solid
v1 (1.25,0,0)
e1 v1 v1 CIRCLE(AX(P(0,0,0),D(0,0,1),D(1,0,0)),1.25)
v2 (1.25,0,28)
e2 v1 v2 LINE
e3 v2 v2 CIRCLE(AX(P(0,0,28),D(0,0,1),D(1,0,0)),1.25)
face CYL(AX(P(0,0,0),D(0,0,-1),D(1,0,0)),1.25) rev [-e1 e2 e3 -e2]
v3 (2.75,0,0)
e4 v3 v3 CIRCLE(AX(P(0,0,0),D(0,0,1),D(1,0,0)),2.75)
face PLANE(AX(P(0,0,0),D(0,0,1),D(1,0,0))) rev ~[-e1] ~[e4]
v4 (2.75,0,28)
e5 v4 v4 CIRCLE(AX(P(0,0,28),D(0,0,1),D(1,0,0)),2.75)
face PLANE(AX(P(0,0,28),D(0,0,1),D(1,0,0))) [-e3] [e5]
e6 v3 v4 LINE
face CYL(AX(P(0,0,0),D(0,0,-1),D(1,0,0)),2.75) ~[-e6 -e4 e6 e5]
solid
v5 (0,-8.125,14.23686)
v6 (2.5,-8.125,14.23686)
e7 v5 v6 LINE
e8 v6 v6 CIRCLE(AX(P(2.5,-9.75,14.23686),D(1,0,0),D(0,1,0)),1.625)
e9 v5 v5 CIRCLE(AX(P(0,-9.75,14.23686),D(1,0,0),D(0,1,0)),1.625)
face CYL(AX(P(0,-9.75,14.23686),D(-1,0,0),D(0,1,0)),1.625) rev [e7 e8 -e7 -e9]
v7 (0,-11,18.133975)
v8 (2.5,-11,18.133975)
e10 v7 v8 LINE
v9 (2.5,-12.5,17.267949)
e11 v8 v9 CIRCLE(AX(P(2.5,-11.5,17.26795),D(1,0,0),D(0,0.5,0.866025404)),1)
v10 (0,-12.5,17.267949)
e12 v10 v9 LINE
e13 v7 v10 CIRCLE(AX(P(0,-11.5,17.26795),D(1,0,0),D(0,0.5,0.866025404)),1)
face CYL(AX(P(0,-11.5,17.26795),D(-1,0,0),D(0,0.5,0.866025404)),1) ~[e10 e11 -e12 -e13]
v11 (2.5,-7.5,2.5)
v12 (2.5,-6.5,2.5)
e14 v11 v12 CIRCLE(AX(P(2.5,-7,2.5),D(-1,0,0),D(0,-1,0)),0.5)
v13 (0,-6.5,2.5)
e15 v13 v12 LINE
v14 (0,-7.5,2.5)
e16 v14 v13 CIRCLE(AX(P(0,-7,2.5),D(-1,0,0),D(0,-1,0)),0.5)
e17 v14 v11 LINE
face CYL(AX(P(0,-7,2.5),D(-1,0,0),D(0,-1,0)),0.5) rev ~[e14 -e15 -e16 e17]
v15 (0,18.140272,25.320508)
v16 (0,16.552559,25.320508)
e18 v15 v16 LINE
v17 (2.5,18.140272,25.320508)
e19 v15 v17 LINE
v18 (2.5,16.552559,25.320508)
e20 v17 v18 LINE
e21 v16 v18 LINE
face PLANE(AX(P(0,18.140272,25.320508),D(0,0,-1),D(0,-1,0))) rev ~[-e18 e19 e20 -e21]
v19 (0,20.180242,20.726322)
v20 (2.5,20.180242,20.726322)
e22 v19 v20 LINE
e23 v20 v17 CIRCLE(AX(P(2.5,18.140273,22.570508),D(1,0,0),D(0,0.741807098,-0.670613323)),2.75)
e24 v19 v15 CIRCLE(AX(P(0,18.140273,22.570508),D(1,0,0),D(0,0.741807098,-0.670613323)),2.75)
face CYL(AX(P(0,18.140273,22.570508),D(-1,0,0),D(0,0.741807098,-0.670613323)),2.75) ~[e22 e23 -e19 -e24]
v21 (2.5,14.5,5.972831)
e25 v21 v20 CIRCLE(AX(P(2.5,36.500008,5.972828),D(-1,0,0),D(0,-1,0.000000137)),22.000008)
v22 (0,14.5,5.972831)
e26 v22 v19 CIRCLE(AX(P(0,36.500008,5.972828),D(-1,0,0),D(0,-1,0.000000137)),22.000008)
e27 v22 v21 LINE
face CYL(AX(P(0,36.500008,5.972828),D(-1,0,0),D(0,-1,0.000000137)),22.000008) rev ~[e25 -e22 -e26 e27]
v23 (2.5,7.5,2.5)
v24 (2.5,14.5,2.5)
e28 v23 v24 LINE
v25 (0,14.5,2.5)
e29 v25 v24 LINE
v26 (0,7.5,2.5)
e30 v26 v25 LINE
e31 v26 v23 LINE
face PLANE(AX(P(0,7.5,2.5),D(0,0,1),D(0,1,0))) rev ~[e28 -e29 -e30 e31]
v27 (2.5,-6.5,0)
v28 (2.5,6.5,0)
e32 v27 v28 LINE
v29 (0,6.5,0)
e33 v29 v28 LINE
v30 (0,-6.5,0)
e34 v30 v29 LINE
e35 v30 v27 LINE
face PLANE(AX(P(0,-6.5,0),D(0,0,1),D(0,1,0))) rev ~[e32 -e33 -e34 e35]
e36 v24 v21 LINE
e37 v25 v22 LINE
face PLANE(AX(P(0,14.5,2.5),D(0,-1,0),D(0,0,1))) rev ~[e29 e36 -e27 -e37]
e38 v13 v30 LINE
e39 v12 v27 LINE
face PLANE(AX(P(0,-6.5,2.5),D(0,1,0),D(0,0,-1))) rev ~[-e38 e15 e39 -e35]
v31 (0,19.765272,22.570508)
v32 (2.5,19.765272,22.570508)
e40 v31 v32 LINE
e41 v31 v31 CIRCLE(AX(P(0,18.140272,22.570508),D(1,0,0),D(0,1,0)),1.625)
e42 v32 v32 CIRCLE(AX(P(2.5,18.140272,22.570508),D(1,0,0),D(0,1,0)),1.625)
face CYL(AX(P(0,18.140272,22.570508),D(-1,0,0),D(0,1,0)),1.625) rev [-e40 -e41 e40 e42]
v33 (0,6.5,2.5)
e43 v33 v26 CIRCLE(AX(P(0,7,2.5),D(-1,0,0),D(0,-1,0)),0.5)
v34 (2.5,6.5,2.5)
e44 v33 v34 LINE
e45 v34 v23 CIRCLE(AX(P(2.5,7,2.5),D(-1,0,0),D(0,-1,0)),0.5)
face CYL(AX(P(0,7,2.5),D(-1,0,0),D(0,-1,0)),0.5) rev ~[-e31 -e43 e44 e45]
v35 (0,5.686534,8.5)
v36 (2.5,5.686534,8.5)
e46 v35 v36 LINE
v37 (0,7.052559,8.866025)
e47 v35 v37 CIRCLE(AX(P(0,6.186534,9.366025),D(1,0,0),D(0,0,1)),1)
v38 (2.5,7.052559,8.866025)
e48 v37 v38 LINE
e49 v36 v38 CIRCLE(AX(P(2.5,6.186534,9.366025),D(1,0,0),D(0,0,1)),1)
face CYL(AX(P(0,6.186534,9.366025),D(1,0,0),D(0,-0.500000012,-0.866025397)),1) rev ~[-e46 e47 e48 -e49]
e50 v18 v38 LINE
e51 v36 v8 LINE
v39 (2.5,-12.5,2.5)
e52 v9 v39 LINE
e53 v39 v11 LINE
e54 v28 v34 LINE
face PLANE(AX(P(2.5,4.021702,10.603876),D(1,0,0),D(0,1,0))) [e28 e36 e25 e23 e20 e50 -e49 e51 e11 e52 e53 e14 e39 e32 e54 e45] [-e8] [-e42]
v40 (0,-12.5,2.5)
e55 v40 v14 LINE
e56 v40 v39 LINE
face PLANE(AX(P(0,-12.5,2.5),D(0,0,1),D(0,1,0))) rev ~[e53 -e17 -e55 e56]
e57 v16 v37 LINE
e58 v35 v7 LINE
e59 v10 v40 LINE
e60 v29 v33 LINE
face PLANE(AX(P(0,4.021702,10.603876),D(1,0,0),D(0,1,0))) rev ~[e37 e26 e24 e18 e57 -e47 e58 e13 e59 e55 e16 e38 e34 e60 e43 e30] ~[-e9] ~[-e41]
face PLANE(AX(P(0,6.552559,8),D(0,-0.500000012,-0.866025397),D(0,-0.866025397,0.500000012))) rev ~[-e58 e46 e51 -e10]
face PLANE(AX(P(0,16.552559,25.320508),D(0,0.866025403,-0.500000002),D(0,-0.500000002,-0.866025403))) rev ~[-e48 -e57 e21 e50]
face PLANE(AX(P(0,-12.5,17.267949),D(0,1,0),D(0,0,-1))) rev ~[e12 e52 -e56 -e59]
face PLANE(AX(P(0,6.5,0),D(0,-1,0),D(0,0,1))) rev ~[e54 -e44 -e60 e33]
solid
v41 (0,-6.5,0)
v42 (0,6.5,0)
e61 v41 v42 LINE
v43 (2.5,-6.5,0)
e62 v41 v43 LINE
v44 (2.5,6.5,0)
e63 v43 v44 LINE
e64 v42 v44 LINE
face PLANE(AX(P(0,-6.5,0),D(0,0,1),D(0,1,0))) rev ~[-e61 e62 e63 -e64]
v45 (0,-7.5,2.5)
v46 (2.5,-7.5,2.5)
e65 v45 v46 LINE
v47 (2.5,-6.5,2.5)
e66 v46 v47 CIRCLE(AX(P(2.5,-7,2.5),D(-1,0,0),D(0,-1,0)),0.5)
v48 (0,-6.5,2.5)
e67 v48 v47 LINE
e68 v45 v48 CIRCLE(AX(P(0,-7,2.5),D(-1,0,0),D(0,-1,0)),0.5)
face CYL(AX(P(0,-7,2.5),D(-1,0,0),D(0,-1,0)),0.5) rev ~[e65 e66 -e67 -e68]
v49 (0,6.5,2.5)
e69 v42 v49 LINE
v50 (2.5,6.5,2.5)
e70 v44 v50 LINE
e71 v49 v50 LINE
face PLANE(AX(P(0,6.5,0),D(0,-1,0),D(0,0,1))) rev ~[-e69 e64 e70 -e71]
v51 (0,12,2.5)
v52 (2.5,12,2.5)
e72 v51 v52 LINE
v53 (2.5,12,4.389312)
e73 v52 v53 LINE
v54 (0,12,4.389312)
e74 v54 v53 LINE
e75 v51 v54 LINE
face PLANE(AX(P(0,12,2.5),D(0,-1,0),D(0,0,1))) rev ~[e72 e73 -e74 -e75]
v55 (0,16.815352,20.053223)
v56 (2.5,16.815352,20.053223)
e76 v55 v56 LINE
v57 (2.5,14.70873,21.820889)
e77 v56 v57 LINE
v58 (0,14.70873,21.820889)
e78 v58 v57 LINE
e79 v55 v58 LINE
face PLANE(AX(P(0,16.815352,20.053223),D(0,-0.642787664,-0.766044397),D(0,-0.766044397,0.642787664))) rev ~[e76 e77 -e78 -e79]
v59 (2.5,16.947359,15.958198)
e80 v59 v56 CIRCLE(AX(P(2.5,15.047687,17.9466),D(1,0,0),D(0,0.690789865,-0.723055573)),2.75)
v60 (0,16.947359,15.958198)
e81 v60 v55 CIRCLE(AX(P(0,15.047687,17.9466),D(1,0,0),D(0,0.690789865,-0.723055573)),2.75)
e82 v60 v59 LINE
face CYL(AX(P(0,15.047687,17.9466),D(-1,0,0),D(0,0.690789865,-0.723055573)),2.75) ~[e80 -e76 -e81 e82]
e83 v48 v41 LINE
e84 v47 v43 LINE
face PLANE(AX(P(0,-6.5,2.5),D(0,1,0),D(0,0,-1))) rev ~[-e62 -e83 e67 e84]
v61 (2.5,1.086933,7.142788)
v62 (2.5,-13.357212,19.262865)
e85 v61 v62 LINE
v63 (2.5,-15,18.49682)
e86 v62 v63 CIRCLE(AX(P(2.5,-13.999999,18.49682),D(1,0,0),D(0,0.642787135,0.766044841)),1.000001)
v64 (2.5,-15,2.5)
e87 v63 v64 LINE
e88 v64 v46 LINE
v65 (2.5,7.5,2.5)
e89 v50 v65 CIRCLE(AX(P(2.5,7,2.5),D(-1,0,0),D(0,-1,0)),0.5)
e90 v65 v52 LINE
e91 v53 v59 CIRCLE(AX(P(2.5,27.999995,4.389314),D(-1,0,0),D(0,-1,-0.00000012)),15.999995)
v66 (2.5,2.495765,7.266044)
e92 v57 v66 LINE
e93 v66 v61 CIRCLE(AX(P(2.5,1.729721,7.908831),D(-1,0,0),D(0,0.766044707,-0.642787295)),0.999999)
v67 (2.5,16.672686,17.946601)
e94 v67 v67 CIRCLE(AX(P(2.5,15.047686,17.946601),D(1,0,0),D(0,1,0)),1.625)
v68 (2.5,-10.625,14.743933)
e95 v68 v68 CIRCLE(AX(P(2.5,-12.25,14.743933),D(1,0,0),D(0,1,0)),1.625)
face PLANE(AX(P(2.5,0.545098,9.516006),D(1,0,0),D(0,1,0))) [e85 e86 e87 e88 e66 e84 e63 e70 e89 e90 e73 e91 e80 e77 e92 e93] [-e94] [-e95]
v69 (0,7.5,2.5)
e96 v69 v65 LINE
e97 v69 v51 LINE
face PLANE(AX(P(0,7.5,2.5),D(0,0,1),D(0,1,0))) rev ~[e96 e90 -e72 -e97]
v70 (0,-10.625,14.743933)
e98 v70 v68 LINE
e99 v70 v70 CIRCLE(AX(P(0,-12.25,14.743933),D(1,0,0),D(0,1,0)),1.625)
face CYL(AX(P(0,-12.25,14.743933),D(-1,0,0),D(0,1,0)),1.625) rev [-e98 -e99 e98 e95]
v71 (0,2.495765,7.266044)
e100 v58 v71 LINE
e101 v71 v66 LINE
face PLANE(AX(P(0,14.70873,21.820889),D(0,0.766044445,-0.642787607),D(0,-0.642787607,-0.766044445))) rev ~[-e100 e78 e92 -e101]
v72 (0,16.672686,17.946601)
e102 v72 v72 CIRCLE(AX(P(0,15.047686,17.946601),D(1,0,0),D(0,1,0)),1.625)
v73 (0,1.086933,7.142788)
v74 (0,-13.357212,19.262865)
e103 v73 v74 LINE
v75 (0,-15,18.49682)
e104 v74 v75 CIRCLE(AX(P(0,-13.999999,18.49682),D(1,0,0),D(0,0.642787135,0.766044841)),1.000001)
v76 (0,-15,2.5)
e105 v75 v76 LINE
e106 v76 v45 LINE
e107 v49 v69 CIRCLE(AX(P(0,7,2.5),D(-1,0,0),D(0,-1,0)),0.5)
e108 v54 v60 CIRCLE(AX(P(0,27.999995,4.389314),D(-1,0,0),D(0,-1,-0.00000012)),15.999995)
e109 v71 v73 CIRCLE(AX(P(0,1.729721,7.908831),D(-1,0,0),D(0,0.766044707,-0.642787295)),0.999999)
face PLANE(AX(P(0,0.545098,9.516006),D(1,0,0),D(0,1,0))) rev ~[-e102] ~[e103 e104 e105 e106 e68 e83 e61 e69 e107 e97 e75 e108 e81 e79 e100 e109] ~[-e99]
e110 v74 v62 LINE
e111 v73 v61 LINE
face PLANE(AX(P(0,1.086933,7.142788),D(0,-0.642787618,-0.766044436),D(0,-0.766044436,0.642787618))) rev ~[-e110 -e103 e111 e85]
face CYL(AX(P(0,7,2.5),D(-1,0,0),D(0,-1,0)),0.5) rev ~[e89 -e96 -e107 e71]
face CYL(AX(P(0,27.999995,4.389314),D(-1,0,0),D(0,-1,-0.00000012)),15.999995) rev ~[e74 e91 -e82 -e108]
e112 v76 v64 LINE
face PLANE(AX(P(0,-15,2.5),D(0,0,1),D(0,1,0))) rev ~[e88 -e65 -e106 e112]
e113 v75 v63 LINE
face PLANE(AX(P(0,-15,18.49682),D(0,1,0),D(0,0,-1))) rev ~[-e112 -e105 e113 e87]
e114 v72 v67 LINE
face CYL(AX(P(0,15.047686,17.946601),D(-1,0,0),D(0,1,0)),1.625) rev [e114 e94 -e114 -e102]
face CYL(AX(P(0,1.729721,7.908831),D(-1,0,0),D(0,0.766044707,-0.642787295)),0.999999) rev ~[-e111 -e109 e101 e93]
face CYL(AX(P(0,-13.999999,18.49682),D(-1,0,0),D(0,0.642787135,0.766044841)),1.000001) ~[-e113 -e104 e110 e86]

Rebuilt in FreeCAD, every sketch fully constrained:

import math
import FreeCAD as App
import Part
import Sketcher

V = App.Vector
Q = App.Units.Quantity


def edges_at(feature, points):
    """Names of the edges that pass closest to the given points."""
    edges = feature.Shape.Edges
    near = lambda p: min(range(len(edges)), key=lambda i: edges[i].distToShape(Part.Vertex(*p))[0])
    return sorted({f"Edge{near(p) + 1}" for p in points})

doc = App.newDocument("Part")
params = doc.addObject("Spreadsheet::Sheet", "Params")
for row, (alias, value) in enumerate([
    ("sketch1_radius", "1 mm"),
    ("sketch1_radius2", "0.5 mm"),
    ("sketch1_diameter", "3.25 mm"),
    ("sketch1_width", "5 mm"),
    ("sketch1_width2", "13 mm"),
    ("pad1_length", "2.5 mm"),
    ("fillet_radius", "1 mm"),
    ("sketch2_radius", "0.999999 mm"),
    ("sketch2_radius2", "0.5 mm"),
    ("sketch2_diameter", "3.25 mm"),
    ("sketch2_width", "13 mm"),
    ("sketch2_radius3", "2.75 mm"),
    ("pad2_length", "2.5 mm"),
    ("sketch3_diameter", "5.5 mm"),
    ("sketch3_diameter2", "2.5 mm"),
    ("pad3_length", "28 mm"),
], start=1):
    params.set(f"A{row}", alias)
    params.set(f"B{row}", "=" + value)
    params.setAlias(f"B{row}", alias)

body = doc.addObject("PartDesign::Body", "Body")

# Sketch on YZ plane
sketch1 = body.newObject("Sketcher::SketchObject", "Sketch")
sketch1.AttachmentSupport = (doc.getObject("YZ_Plane"), [""])
sketch1.MapMode = "FlatFace"
sketch1.addGeometry([
    Part.LineSegment(V(-12.5, 17.267949, 0), V(-12.5, 2.5, 0)),  # 0
    Part.LineSegment(V(-12.5, 2.5, 0), V(-7.5, 2.5, 0)),  # 1
    Part.ArcOfCircle(Part.Circle(V(-7, 2.5, 0), V(0, 0, 1), 0.5), math.radians(0), math.radians(180)),  # 2
    Part.LineSegment(V(-6.5, 2.5, 0), V(-6.5, 0, 0)),  # 3
    Part.LineSegment(V(-6.5, 0, 0), V(6.5, 0, 0)),  # 4
    Part.LineSegment(V(6.5, 0, 0), V(6.5, 2.5, 0)),  # 5
    Part.ArcOfCircle(Part.Circle(V(7, 2.5, 0), V(0, 0, 1), 0.5), math.radians(0), math.radians(180)),  # 6
    Part.LineSegment(V(7.5, 2.5, 0), V(14.5, 2.5, 0)),  # 7
    Part.LineSegment(V(14.5, 2.5, 0), V(14.5, 5.972831, 0)),  # 8
    Part.ArcOfCircle(Part.Circle(V(36.500008, 5.972828, 0), V(0, 0, 1), 22.000008), math.radians(137.885596), math.radians(179.999992)),  # 9
    Part.ArcOfCircle(Part.Circle(V(18.140273, 22.570508, 0), V(0, 0, 1), 2.75), math.radians(-42.114419), math.radians(90.000016)),  # 10
    Part.LineSegment(V(18.140272, 25.320508, 0), V(16.552559, 25.320508, 0)),  # 11
    Part.LineSegment(V(16.552559, 25.320508, 0), V(6.552559, 8, 0)),  # 12
    Part.LineSegment(V(6.552559, 8, 0), V(-11, 18.133975, 0)),  # 13
    Part.ArcOfCircle(Part.Circle(V(-11.5, 17.26795, 0), V(0, 0, 1), 1), math.radians(60), math.radians(180.000034)),  # 14
    Part.Circle(V(-9.75, 14.23686, 0), V(0, 0, 1), 1.625),  # 15
    Part.Circle(V(18.140272, 22.570508, 0), V(0, 0, 1), 1.625),  # 16
], False)
sketch1.addConstraint([
    Sketcher.Constraint("Coincident", 0, 2, 1, 1),
    Sketcher.Constraint("Coincident", 1, 2, 2, 2),
    Sketcher.Constraint("Tangent", 2, 1, 3, 1),
    Sketcher.Constraint("Coincident", 3, 2, 4, 1),
    Sketcher.Constraint("Coincident", 4, 2, 5, 1),
    Sketcher.Constraint("Tangent", 5, 2, 6, 2),
    Sketcher.Constraint("Coincident", 6, 1, 7, 1),
    Sketcher.Constraint("Coincident", 7, 2, 8, 1),
    Sketcher.Constraint("Tangent", 8, 2, 9, 2),
    Sketcher.Constraint("Tangent", 9, 1, 10, 1),
    Sketcher.Constraint("Tangent", 10, 2, 11, 1),
    Sketcher.Constraint("Coincident", 11, 2, 12, 1),
    Sketcher.Constraint("Coincident", 12, 2, 13, 1),
    Sketcher.Constraint("Tangent", 13, 2, 14, 1),
    Sketcher.Constraint("Tangent", 14, 2, 0, 1),
    Sketcher.Constraint("Vertical", 0),
    Sketcher.Constraint("Horizontal", 1),
    Sketcher.Constraint("Vertical", 3),
    Sketcher.Constraint("Horizontal", 4),
    Sketcher.Constraint("Vertical", 5),
    Sketcher.Constraint("Horizontal", 7),
    Sketcher.Constraint("Vertical", 8),
    Sketcher.Constraint("Horizontal", 11),
    Sketcher.Constraint("Coincident", 16, 3, 10, 3),
    Sketcher.Constraint("Equal", 2, 6),
    Sketcher.Constraint("Equal", 15, 16),
    Sketcher.Constraint("Symmetric", 3, 2, 4, 2, -1, 1),
    Sketcher.Constraint("Perpendicular", 12, 13),
    Sketcher.Constraint("Horizontal", 2, 3, 6, 3),
    Sketcher.Constraint("Horizontal", 6, 3, 0, 2),
    Sketcher.Constraint("Horizontal", 5, 2, 6, 1),
    Sketcher.Constraint("Radius", 14, 1.0),
    Sketcher.Constraint("Radius", 2, 0.5),
    Sketcher.Constraint("Diameter", 15, 3.25),
    Sketcher.Constraint("DistanceX", 1, 1, 1, 2, 5.0),
    Sketcher.Constraint("DistanceX", 4, 1, 4, 2, 13.0),
    Sketcher.Constraint("DistanceX", 7, 1, 7, 2, 7.0),
    Sketcher.Constraint("Angle", 12, Q("-120 deg")),
    Sketcher.Constraint("Radius", 10, 2.75),
    Sketcher.Constraint("Distance", 12, 20.0),
    Sketcher.Constraint("DistanceY", 3, 2, 3, 1, 2.5),
    Sketcher.Constraint("DistanceY", -1, 1, 12, 2, 8.0),
    Sketcher.Constraint("DistanceX", 15, 3, -1, 1, 9.75),
    Sketcher.Constraint("Radius", 9, 22.000008),
    Sketcher.Constraint("DistanceY", 0, 2, 0, 1, 14.767949),
    Sketcher.Constraint("DistanceY", 8, 1, 8, 2, 3.472831),
    Sketcher.Constraint("DistanceY", -1, 1, 15, 3, 14.23686),
])
sketch1.setExpression("Constraints[31]", "Params.sketch1_radius")
sketch1.setExpression("Constraints[32]", "Params.sketch1_radius2")
sketch1.setExpression("Constraints[33]", "Params.sketch1_diameter")
sketch1.setExpression("Constraints[34]", "Params.sketch1_width")
sketch1.setExpression("Constraints[35]", "Params.sketch1_width2")
pad1 = body.newObject("PartDesign::Pad", "Pad")
pad1.Profile = sketch1
pad1.setExpression("Length", "Params.pad1_length")
doc.recompute()

fillet = body.newObject("PartDesign::Fillet", "Fillet")
fillet.Base = (pad1, edges_at(pad1, [(1.25, 6.553, 8)]))
fillet.setExpression("Radius", "Params.fillet_radius")
body2 = doc.addObject("PartDesign::Body", "Body001")

# Sketch on YZ plane
sketch2 = body2.newObject("Sketcher::SketchObject", "Sketch001")
sketch2.AttachmentSupport = (doc.getObject("YZ_Plane001"), [""])
sketch2.MapMode = "FlatFace"
sketch2.addGeometry([
    Part.LineSegment(V(-6.5, 2.5, 0), V(-6.5, 0, 0)),  # 0
    Part.LineSegment(V(-6.5, 0, 0), V(6.5, 0, 0)),  # 1
    Part.LineSegment(V(6.5, 0, 0), V(6.5, 2.5, 0)),  # 2
    Part.ArcOfCircle(Part.Circle(V(7, 2.5, 0), V(0, 0, 1), 0.5), math.radians(0), math.radians(180)),  # 3
    Part.LineSegment(V(7.5, 2.5, 0), V(12, 2.5, 0)),  # 4
    Part.LineSegment(V(12, 2.5, 0), V(12, 4.389312, 0)),  # 5
    Part.ArcOfCircle(Part.Circle(V(27.999995, 4.389314, 0), V(0, 0, 1), 15.999995), math.radians(133.692674), math.radians(180.000007)),  # 6
    Part.ArcOfCircle(Part.Circle(V(15.047687, 17.9466, 0), V(0, 0, 1), 2.75), math.radians(-46.307334), math.radians(50.000022)),  # 7
    Part.LineSegment(V(16.815352, 20.053223, 0), V(14.70873, 21.820889, 0)),  # 8
    Part.LineSegment(V(14.70873, 21.820889, 0), V(2.495765, 7.266044, 0)),  # 9
    Part.ArcOfCircle(Part.Circle(V(1.729721, 7.908831, 0), V(0, 0, 1), 0.999999), math.radians(-130.00009), math.radians(-39.999977)),  # 10
    Part.LineSegment(V(1.086933, 7.142788, 0), V(-13.357212, 19.262865, 0)),  # 11
    Part.ArcOfCircle(Part.Circle(V(-13.999999, 18.49682, 0), V(0, 0, 1), 1.000001), math.radians(50.000035), math.radians(179.999986)),  # 12
    Part.LineSegment(V(-15, 18.49682, 0), V(-15, 2.5, 0)),  # 13
    Part.LineSegment(V(-15, 2.5, 0), V(-7.5, 2.5, 0)),  # 14
    Part.ArcOfCircle(Part.Circle(V(-7, 2.5, 0), V(0, 0, 1), 0.5), math.radians(0), math.radians(180)),  # 15
    Part.Circle(V(-12.25, 14.743933, 0), V(0, 0, 1), 1.625),  # 16
    Part.Circle(V(15.047686, 17.946601, 0), V(0, 0, 1), 1.625),  # 17
], False)
sketch2.addConstraint([
    Sketcher.Constraint("Coincident", 0, 2, 1, 1),
    Sketcher.Constraint("Coincident", 1, 2, 2, 1),
    Sketcher.Constraint("Tangent", 2, 2, 3, 2),
    Sketcher.Constraint("Coincident", 3, 1, 4, 1),
    Sketcher.Constraint("Coincident", 4, 2, 5, 1),
    Sketcher.Constraint("Tangent", 5, 2, 6, 2),
    Sketcher.Constraint("Tangent", 6, 1, 7, 1),
    Sketcher.Constraint("Tangent", 7, 2, 8, 1),
    Sketcher.Constraint("Coincident", 8, 2, 9, 1),
    Sketcher.Constraint("Tangent", 9, 2, 10, 2),
    Sketcher.Constraint("Tangent", 10, 1, 11, 1),
    Sketcher.Constraint("Tangent", 11, 2, 12, 1),
    Sketcher.Constraint("Tangent", 12, 2, 13, 1),
    Sketcher.Constraint("Coincident", 13, 2, 14, 1),
    Sketcher.Constraint("Coincident", 14, 2, 15, 2),
    Sketcher.Constraint("Tangent", 15, 1, 0, 1),
    Sketcher.Constraint("Vertical", 0),
    Sketcher.Constraint("Horizontal", 1),
    Sketcher.Constraint("Vertical", 2),
    Sketcher.Constraint("Horizontal", 4),
    Sketcher.Constraint("Vertical", 5),
    Sketcher.Constraint("Vertical", 13),
    Sketcher.Constraint("Horizontal", 14),
    Sketcher.Constraint("Coincident", 17, 3, 7, 3),
    Sketcher.Constraint("Equal", 10, 12),
    Sketcher.Constraint("Equal", 3, 15),
    Sketcher.Constraint("Equal", 16, 17),
    Sketcher.Constraint("Symmetric", 0, 2, 1, 2, -1, 1),
    Sketcher.Constraint("Perpendicular", 8, 9),
    Sketcher.Constraint("Perpendicular", 9, 11),
    Sketcher.Constraint("Horizontal", 3, 3, 15, 3),
    Sketcher.Constraint("Horizontal", 2, 2, 3, 1),
    Sketcher.Constraint("Horizontal", 4, 2, 13, 2),
    Sketcher.Constraint("Radius", 10, 0.999999),
    Sketcher.Constraint("Radius", 3, 0.5),
    Sketcher.Constraint("Diameter", 16, 3.25),
    Sketcher.Constraint("DistanceX", 1, 1, 1, 2, 13.0),
    Sketcher.Constraint("Angle", 8, Q("139.999996 deg")),
    Sketcher.Constraint("Radius", 7, 2.75),
    Sketcher.Constraint("Distance", 9, 19.000001),
    Sketcher.Constraint("DistanceX", 4, 1, 4, 2, 4.5),
    Sketcher.Constraint("DistanceX", 14, 1, 14, 2, 7.5),
    Sketcher.Constraint("DistanceY", 0, 2, 0, 1, 2.5),
    Sketcher.Constraint("Distance", 8, 2.75),
    Sketcher.Constraint("DistanceX", 16, 3, -1, 1, 12.25),
    Sketcher.Constraint("Radius", 6, 15.999995),
    Sketcher.Constraint("DistanceY", 13, 2, 13, 1, 15.99682),
    Sketcher.Constraint("DistanceY", -1, 1, 7, 3, 17.9466),
    Sketcher.Constraint("DistanceY", -1, 1, 16, 3, 14.743933),
])
sketch2.setExpression("Constraints[33]", "Params.sketch2_radius")
sketch2.setExpression("Constraints[34]", "Params.sketch2_radius2")
sketch2.setExpression("Constraints[35]", "Params.sketch2_diameter")
sketch2.setExpression("Constraints[36]", "Params.sketch2_width")
sketch2.setExpression("Constraints[38]", "Params.sketch2_radius3")
pad2 = body2.newObject("PartDesign::Pad", "Pad001")
pad2.Profile = sketch2
pad2.setExpression("Length", "Params.pad2_length")
body3 = doc.addObject("PartDesign::Body", "Body002")

# Sketch on XY plane
sketch3 = body3.newObject("Sketcher::SketchObject", "Sketch002")
sketch3.AttachmentSupport = (doc.getObject("XY_Plane002"), [""])
sketch3.MapMode = "FlatFace"
sketch3.addGeometry([
    Part.Circle(V(0, 0, 0), V(0, 0, 1), 2.75),
    Part.Circle(V(0, 0, 0), V(0, 0, 1), 1.25),
], False)
sketch3.addConstraint([
    Sketcher.Constraint("Coincident", 0, 3, -1, 1),
    Sketcher.Constraint("Coincident", 1, 3, -1, 1),
    Sketcher.Constraint("Diameter", 0, 5.5),
    Sketcher.Constraint("Diameter", 1, 2.5),
])
sketch3.setExpression("Constraints[2]", "Params.sketch3_diameter")
sketch3.setExpression("Constraints[3]", "Params.sketch3_diameter2")
pad3 = body3.newObject("PartDesign::Pad", "Pad002")
pad3.Profile = sketch3
pad3.setExpression("Length", "Params.pad3_length")

doc.recompute()
